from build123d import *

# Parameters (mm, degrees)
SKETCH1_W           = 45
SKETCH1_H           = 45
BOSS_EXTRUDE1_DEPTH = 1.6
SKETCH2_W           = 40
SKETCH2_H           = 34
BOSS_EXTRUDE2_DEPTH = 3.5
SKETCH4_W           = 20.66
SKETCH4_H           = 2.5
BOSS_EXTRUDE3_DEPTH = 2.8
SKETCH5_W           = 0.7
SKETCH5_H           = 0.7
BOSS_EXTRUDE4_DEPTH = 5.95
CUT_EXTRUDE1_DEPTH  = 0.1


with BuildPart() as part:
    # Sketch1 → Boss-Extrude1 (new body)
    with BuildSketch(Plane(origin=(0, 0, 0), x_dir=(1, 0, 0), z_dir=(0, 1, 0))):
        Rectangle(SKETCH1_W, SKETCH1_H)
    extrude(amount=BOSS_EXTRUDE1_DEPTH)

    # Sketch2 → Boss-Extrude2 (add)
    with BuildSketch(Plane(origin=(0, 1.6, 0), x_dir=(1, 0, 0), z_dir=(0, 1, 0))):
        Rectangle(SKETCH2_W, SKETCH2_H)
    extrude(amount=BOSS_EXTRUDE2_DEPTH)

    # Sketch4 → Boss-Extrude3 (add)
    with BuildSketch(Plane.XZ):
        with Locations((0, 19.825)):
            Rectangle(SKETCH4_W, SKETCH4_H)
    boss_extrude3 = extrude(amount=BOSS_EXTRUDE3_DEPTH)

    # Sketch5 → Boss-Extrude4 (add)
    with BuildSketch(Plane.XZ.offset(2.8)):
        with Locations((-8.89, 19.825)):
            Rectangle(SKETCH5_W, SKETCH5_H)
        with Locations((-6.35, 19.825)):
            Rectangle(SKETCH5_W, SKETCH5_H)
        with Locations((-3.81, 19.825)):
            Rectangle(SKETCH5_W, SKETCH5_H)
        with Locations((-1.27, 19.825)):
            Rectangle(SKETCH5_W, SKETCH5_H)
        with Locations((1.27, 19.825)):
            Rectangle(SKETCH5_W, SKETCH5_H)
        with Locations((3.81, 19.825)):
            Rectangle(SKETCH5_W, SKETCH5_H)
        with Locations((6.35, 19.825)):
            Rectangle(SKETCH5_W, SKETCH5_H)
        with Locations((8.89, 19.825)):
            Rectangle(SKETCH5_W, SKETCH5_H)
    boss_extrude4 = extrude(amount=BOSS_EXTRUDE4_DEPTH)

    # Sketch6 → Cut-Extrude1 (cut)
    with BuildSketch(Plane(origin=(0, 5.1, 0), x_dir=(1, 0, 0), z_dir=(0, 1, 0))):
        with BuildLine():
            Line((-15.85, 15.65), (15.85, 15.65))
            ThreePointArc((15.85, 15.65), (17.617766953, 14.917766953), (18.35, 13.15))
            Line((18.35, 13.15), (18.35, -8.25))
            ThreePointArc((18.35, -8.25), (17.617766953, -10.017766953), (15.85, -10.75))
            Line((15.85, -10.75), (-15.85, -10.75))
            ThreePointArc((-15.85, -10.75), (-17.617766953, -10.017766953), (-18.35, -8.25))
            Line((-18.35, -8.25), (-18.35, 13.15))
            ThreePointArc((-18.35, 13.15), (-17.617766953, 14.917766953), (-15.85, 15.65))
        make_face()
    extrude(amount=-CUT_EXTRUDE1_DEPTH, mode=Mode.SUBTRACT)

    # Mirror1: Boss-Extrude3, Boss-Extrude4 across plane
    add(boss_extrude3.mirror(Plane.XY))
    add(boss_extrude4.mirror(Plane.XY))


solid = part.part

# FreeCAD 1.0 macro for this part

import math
import FreeCAD as App
import Part
import Sketcher

V = App.Vector
Q = App.Units.Quantity

doc = App.newDocument("Part")
body = doc.addObject("PartDesign::Body", "Body")

sketch1 = doc.addObject("Sketcher::SketchObject", "Sketch")
body.addObject(sketch1)
sketch1.AttachmentSupport = (doc.XZ_Plane, [""])
sketch1.MapMode = "FlatFace"
sketch1.addGeometry([
    Part.LineSegment(V(-22, -22, 0), V(-22, 22, 0)),
    Part.LineSegment(V(-22, 22, 0), V(22, 22, 0)),
    Part.LineSegment(V(22, 22, 0), V(22, -22, 0)),
    Part.LineSegment(V(22, -22, 0), V(-22, -22, 0)),
], False)
sketch1.addConstraint([
    Sketcher.Constraint("Coincident", 0, 2, 1, 1),
    Sketcher.Constraint("Coincident", 1, 2, 2, 1),
    Sketcher.Constraint("Coincident", 2, 2, 3, 1),
    Sketcher.Constraint("Coincident", 3, 2, 0, 1),
    Sketcher.Constraint("Vertical", 0),
    Sketcher.Constraint("Horizontal", 1),
    Sketcher.Constraint("Vertical", 2),
    Sketcher.Constraint("Horizontal", 3),
    Sketcher.Constraint("Symmetric", 0, 2, 2, 2, -1, 1),
    Sketcher.Constraint("Equal", 3, 0),
    Sketcher.Constraint("DistanceX", 1, 1, 1, 2, Q("45 mm")),
])
pad1 = doc.addObject("PartDesign::Pad", "Pad")
body.addObject(pad1)
pad1.Profile = sketch1
pad1.Length = 1.6
pad1.Reversed = True

sketch2 = doc.addObject("Sketcher::SketchObject", "Sketch001")
body.addObject(sketch2)
sketch2.AttachmentSupport = (doc.XZ_Plane, [""])
sketch2.MapMode = "FlatFace"
sketch2.AttachmentOffset = App.Placement(V(0, 0, -1.6), App.Rotation())
sketch2.addGeometry([
    Part.LineSegment(V(-20, -17, 0), V(-20, 17, 0)),
    Part.LineSegment(V(-20, 17, 0), V(20, 17, 0)),
    Part.LineSegment(V(20, 17, 0), V(20, -17, 0)),
    Part.LineSegment(V(20, -17, 0), V(-20, -17, 0)),
], False)
sketch2.addConstraint([
    Sketcher.Constraint("Coincident", 0, 2, 1, 1),
    Sketcher.Constraint("Coincident", 1, 2, 2, 1),
    Sketcher.Constraint("Coincident", 2, 2, 3, 1),
    Sketcher.Constraint("Coincident", 3, 2, 0, 1),
    Sketcher.Constraint("Vertical", 0),
    Sketcher.Constraint("Horizontal", 1),
    Sketcher.Constraint("Vertical", 2),
    Sketcher.Constraint("Horizontal", 3),
    Sketcher.Constraint("Symmetric", 0, 2, 2, 2, -1, 1),
    Sketcher.Constraint("DistanceX", 1, 1, 1, 2, Q("40 mm")),
    Sketcher.Constraint("DistanceY", 0, 1, 0, 2, Q("34 mm")),
])
pad2 = doc.addObject("PartDesign::Pad", "Pad001")
body.addObject(pad2)
pad2.Profile = sketch2
pad2.Length = 3.5
pad2.Reversed = True

sketch3 = doc.addObject("Sketcher::SketchObject", "Sketch002")
body.addObject(sketch3)
sketch3.AttachmentSupport = (doc.XZ_Plane, [""])
sketch3.MapMode = "FlatFace"
sketch3.addGeometry([
    Part.LineSegment(V(-10.3, 21.1, 0), V(-10.3, 18.6, 0)),
    Part.LineSegment(V(-10.3, 18.6, 0), V(10.3, 18.6, 0)),
    Part.LineSegment(V(10.3, 18.6, 0), V(10.3, 21.1, 0)),
    Part.LineSegment(V(10.3, 21.1, 0), V(-10.3, 21.1, 0)),
], False)
sketch3.addConstraint([
    Sketcher.Constraint("Coincident", 0, 2, 1, 1),
    Sketcher.Constraint("Coincident", 1, 2, 2, 1),
    Sketcher.Constraint("Coincident", 2, 2, 3, 1),
    Sketcher.Constraint("Coincident", 3, 2, 0, 1),
    Sketcher.Constraint("Vertical", 0),
    Sketcher.Constraint("Horizontal", 1),
    Sketcher.Constraint("Vertical", 2),
    Sketcher.Constraint("Horizontal", 3),
    Sketcher.Constraint("DistanceY", 0, 2, 0, 1, Q("2.5 mm")),
    Sketcher.Constraint("DistanceX", 1, 1, 1, 2, Q("20.66 mm")),
    Sketcher.Constraint("DistanceX", 0, 2, -1, 1, Q("10.33 mm")),
    Sketcher.Constraint("DistanceY", -1, 1, 0, 2, Q("18.575 mm")),
])
pad3 = doc.addObject("PartDesign::Pad", "Pad002")
body.addObject(pad3)
pad3.Profile = sketch3
pad3.Length = 2.8

sketch4 = doc.addObject("Sketcher::SketchObject", "Sketch003")
body.addObject(sketch4)
sketch4.AttachmentSupport = (doc.XZ_Plane, [""])
sketch4.MapMode = "FlatFace"
sketch4.AttachmentOffset = App.Placement(V(0, 0, 2.8), App.Rotation())
sketch4.addGeometry([
    Part.LineSegment(V(-9.2, 20.2, 0), V(-9.2, 19.5, 0)),
    Part.LineSegment(V(-9.2, 19.5, 0), V(-8.5, 19.5, 0)),
    Part.LineSegment(V(-8.5, 19.5, 0), V(-8.5, 20.2, 0)),
    Part.LineSegment(V(-8.5, 20.2, 0), V(-9.2, 20.2, 0)),
    Part.LineSegment(V(-6.7, 20.2, 0), V(-6.7, 19.5, 0)),
    Part.LineSegment(V(-6.7, 19.5, 0), V(-6, 19.5, 0)),
    Part.LineSegment(V(-6, 19.5, 0), V(-6, 20.2, 0)),
    Part.LineSegment(V(-6, 20.2, 0), V(-6.7, 20.2, 0)),
    Part.LineSegment(V(-4.2, 20.2, 0), V(-4.2, 19.5, 0)),
    Part.LineSegment(V(-4.2, 19.5, 0), V(-3.5, 19.5, 0)),
    Part.LineSegment(V(-3.5, 19.5, 0), V(-3.5, 20.2, 0)),
    Part.LineSegment(V(-3.5, 20.2, 0), V(-4.2, 20.2, 0)),
    Part.LineSegment(V(-1.6, 20.2, 0), V(-1.6, 19.5, 0)),
    Part.LineSegment(V(-1.6, 19.5, 0), V(-0.9, 19.5, 0)),
    Part.LineSegment(V(-0.9, 19.5, 0), V(-0.9, 20.2, 0)),
    Part.LineSegment(V(-0.9, 20.2, 0), V(-1.6, 20.2, 0)),
    Part.LineSegment(V(0.9, 20.2, 0), V(0.9, 19.5, 0)),
    Part.LineSegment(V(0.9, 19.5, 0), V(1.6, 19.5, 0)),
    Part.LineSegment(V(1.6, 19.5, 0), V(1.6, 20.2, 0)),
    Part.LineSegment(V(1.6, 20.2, 0), V(0.9, 20.2, 0)),
    Part.LineSegment(V(3.5, 20.2, 0), V(3.5, 19.5, 0)),
    Part.LineSegment(V(3.5, 19.5, 0), V(4.2, 19.5, 0)),
    Part.LineSegment(V(4.2, 19.5, 0), V(4.2, 20.2, 0)),
    Part.LineSegment(V(4.2, 20.2, 0), V(3.5, 20.2, 0)),
    Part.LineSegment(V(6, 20.2, 0), V(6, 19.5, 0)),
    Part.LineSegment(V(6, 19.5, 0), V(6.7, 19.5, 0)),
    Part.LineSegment(V(6.7, 19.5, 0), V(6.7, 20.2, 0)),
    Part.LineSegment(V(6.7, 20.2, 0), V(6, 20.2, 0)),
    Part.LineSegment(V(8.5, 20.2, 0), V(8.5, 19.5, 0)),
    Part.LineSegment(V(8.5, 19.5, 0), V(9.2, 19.5, 0)),
    Part.LineSegment(V(9.2, 19.5, 0), V(9.2, 20.2, 0)),
    Part.LineSegment(V(9.2, 20.2, 0), V(8.5, 20.2, 0)),
], False)
sketch4.addConstraint([
    Sketcher.Constraint("Coincident", 0, 2, 1, 1),
    Sketcher.Constraint("Coincident", 1, 2, 2, 1),
    Sketcher.Constraint("Coincident", 2, 2, 3, 1),
    Sketcher.Constraint("Coincident", 3, 2, 0, 1),
    Sketcher.Constraint("Coincident", 4, 2, 5, 1),
    Sketcher.Constraint("Coincident", 5, 2, 6, 1),
    Sketcher.Constraint("Coincident", 6, 2, 7, 1),
    Sketcher.Constraint("Coincident", 7, 2, 4, 1),
    Sketcher.Constraint("Coincident", 8, 2, 9, 1),
    Sketcher.Constraint("Coincident", 9, 2, 10, 1),
    Sketcher.Constraint("Coincident", 10, 2, 11, 1),
    Sketcher.Constraint("Coincident", 11, 2, 8, 1),
    Sketcher.Constraint("Coincident", 12, 2, 13, 1),
    Sketcher.Constraint("Coincident", 13, 2, 14, 1),
    Sketcher.Constraint("Coincident", 14, 2, 15, 1),
    Sketcher.Constraint("Coincident", 15, 2, 12, 1),
    Sketcher.Constraint("Coincident", 16, 2, 17, 1),
    Sketcher.Constraint("Coincident", 17, 2, 18, 1),
    Sketcher.Constraint("Coincident", 18, 2, 19, 1),
    Sketcher.Constraint("Coincident", 19, 2, 16, 1),
    Sketcher.Constraint("Coincident", 20, 2, 21, 1),
    Sketcher.Constraint("Coincident", 21, 2, 22, 1),
    Sketcher.Constraint("Coincident", 22, 2, 23, 1),
    Sketcher.Constraint("Coincident", 23, 2, 20, 1),
    Sketcher.Constraint("Coincident", 24, 2, 25, 1),
    Sketcher.Constraint("Coincident", 25, 2, 26, 1),
    Sketcher.Constraint("Coincident", 26, 2, 27, 1),
    Sketcher.Constraint("Coincident", 27, 2, 24, 1),
    Sketcher.Constraint("Coincident", 28, 2, 29, 1),
    Sketcher.Constraint("Coincident", 29, 2, 30, 1),
    Sketcher.Constraint("Coincident", 30, 2, 31, 1),
    Sketcher.Constraint("Coincident", 31, 2, 28, 1),
    Sketcher.Constraint("Vertical", 0),
    Sketcher.Constraint("Horizontal", 1),
    Sketcher.Constraint("Vertical", 2),
    Sketcher.Constraint("Horizontal", 3),
    Sketcher.Constraint("Vertical", 4),
    Sketcher.Constraint("Horizontal", 5),
    Sketcher.Constraint("Vertical", 6),
    Sketcher.Constraint("Horizontal", 7),
    Sketcher.Constraint("Vertical", 8),
    Sketcher.Constraint("Horizontal", 9),
    Sketcher.Constraint("Vertical", 10),
    Sketcher.Constraint("Horizontal", 11),
    Sketcher.Constraint("Vertical", 12),
    Sketcher.Constraint("Horizontal", 13),
    Sketcher.Constraint("Vertical", 14),
    Sketcher.Constraint("Horizontal", 15),
    Sketcher.Constraint("Vertical", 16),
    Sketcher.Constraint("Horizontal", 17),
    Sketcher.Constraint("Vertical", 18),
    Sketcher.Constraint("Horizontal", 19),
    Sketcher.Constraint("Vertical", 20),
    Sketcher.Constraint("Horizontal", 21),
    Sketcher.Constraint("Vertical", 22),
    Sketcher.Constraint("Horizontal", 23),
    Sketcher.Constraint("Vertical", 24),
    Sketcher.Constraint("Horizontal", 25),
    Sketcher.Constraint("Vertical", 26),
    Sketcher.Constraint("Horizontal", 27),
    Sketcher.Constraint("Vertical", 28),
    Sketcher.Constraint("Horizontal", 29),
    Sketcher.Constraint("Vertical", 30),
    Sketcher.Constraint("Horizontal", 31),
    Sketcher.Constraint("Symmetric", 13, 2, 16, 2, -2),
    Sketcher.Constraint("Symmetric", 15, 2, 18, 2, -2),
    Sketcher.Constraint("Symmetric", 9, 2, 20, 2, -2),
    Sketcher.Constraint("Symmetric", 11, 2, 22, 2, -2),
    Sketcher.Constraint("Symmetric", 5, 2, 24, 2, -2),
    Sketcher.Constraint("Symmetric", 7, 2, 26, 2, -2),
    Sketcher.Constraint("Symmetric", 1, 2, 28, 2, -2),
    Sketcher.Constraint("Symmetric", 3, 2, 30, 2, -2),
    Sketcher.Constraint("Horizontal", 1, 2, 4, 2),
    Sketcher.Constraint("Horizontal", 3, 2, 6, 2),
    Sketcher.Constraint("Horizontal", 5, 2, 8, 2),
    Sketcher.Constraint("Horizontal", 7, 2, 10, 2),
    Sketcher.Constraint("Horizontal", 9, 2, 12, 2),
    Sketcher.Constraint("Horizontal", 11, 2, 14, 2),
    Sketcher.Constraint("Equal", 3, 5),
    Sketcher.Constraint("Equal", 7, 9),
    Sketcher.Constraint("Equal", 11, 13),
    Sketcher.Constraint("Equal", 31, 0),
    Sketcher.Constraint("DistanceX", 1, 1, 1, 2, Q("0.7 mm")),
    Sketcher.Constraint("DistanceX", 5, 2, -1, 1, Q("6 mm")),
    Sketcher.Constraint("DistanceX", 0, 2, -1, 1, Q("9.24 mm")),
    Sketcher.Constraint("DistanceX", 8, 2, -1, 1, Q("4.16 mm")),
    Sketcher.Constraint("DistanceX", 12, 2, -1, 1, Q("1.62 mm")),
    Sketcher.Constraint("DistanceY", -1, 1, 0, 2, Q("19.475 mm")),
])
pad4 = doc.addObject("PartDesign::Pad", "Pad003")
body.addObject(pad4)
pad4.Profile = sketch4
pad4.Length = 5.95

sketch5 = doc.addObject("Sketcher::SketchObject", "Sketch004")
body.addObject(sketch5)
sketch5.AttachmentSupport = (doc.XZ_Plane, [""])
sketch5.MapMode = "FlatFace"
sketch5.AttachmentOffset = App.Placement(V(0, 0, -5.1), App.Rotation())
sketch5.addGeometry([
    Part.LineSegment(V(15.8, -15.7, 0), V(-15.8, -15.7, 0)),
    Part.ArcOfCircle(Part.Circle(V(-15.8, -13.2, 0), V(0, 0, 1), 2.5), math.radians(180), math.radians(270)),
    Part.LineSegment(V(-18.4, -13.2, 0), V(-18.4, 8.2, 0)),
    Part.ArcOfCircle(Part.Circle(V(-15.8, 8.2, 0), V(0, 0, 1), 2.5), math.radians(90), math.radians(180)),
    Part.LineSegment(V(-15.8, 10.8, 0), V(15.8, 10.8, 0)),
    Part.ArcOfCircle(Part.Circle(V(15.8, 8.2, 0), V(0, 0, 1), 2.5), math.radians(0), math.radians(90)),
    Part.LineSegment(V(18.4, 8.2, 0), V(18.4, -13.2, 0)),
    Part.ArcOfCircle(Part.Circle(V(15.8, -13.2, 0), V(0, 0, 1), 2.5), math.radians(-90), math.radians(0)),
], False)
sketch5.addConstraint([
    Sketcher.Constraint("Tangent", 0, 2, 1, 2),
    Sketcher.Constraint("Tangent", 1, 1, 2, 1),
    Sketcher.Constraint("Tangent", 2, 2, 3, 2),
    Sketcher.Constraint("Tangent", 3, 1, 4, 1),
    Sketcher.Constraint("Tangent", 4, 2, 5, 2),
    Sketcher.Constraint("Tangent", 5, 1, 6, 1),
    Sketcher.Constraint("Tangent", 6, 2, 7, 2),
    Sketcher.Constraint("Tangent", 7, 1, 0, 1),
    Sketcher.Constraint("Horizontal", 0),
    Sketcher.Constraint("Vertical", 2),
    Sketcher.Constraint("Horizontal", 4),
    Sketcher.Constraint("Vertical", 6),
    Sketcher.Constraint("Equal", 1, 3),
    Sketcher.Constraint("Equal", 3, 5),
    Sketcher.Constraint("Equal", 5, 7),
    Sketcher.Constraint("Radius", 1, Q("2.5 mm")),
    Sketcher.Constraint("DistanceX", 0, 2, 0, 1, Q("31.7 mm")),
    Sketcher.Constraint("DistanceY", 2, 1, 2, 2, Q("21.4 mm")),
    Sketcher.Constraint("DistanceX", 1, 3, -1, 1, Q("15.85 mm")),
    Sketcher.Constraint("DistanceY", 1, 3, -1, 1, Q("13.15 mm")),
])
pocket1 = doc.addObject("PartDesign::Pocket", "Pocket")
body.addObject(pocket1)
pocket1.Profile = sketch5
pocket1.Length = 0.1
pocket1.Reversed = True
doc.recompute()

mirrored = doc.addObject("PartDesign::Mirrored", "Mirrored")
body.addObject(mirrored)
mirrored.Originals = [pad3, pad4]
mirrored.MirrorPlane = (doc.XY_Plane, [""])
body.Tip = mirrored

doc.recompute()
